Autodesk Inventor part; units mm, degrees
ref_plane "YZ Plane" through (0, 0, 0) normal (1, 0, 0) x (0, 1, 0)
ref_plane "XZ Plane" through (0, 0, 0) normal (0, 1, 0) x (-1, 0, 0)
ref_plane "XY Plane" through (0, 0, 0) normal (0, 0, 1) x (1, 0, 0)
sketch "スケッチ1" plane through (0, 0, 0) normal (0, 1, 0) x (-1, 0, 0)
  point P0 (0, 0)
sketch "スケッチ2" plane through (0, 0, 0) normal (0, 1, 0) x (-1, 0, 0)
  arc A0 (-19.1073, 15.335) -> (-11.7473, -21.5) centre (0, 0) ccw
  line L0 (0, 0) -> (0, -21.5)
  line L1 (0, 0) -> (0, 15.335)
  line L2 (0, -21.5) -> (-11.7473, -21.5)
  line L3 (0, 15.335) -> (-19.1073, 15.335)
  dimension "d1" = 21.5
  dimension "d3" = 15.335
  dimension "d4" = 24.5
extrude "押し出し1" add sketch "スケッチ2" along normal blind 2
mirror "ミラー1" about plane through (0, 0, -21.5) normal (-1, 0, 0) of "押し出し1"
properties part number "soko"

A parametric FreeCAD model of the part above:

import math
import FreeCAD as App
import Part
import Sketcher

doc = App.newDocument("Part")
body = doc.addObject("PartDesign::Body", "Body")

sketch1 = body.newObject("Sketcher::SketchObject", "Sketch")
sketch1.AttachmentSupport = (doc.getObject("XZ_Plane"), [""])
sketch1.MapMode = "FlatFace"
sketch1.addGeometry(Part.LineSegment(App.Vector(0, 15, 0), App.Vector(19, 15, 0)), False)
sketch1.addGeometry(Part.ArcOfCircle(Part.Circle(App.Vector(0, 0, 0), App.Vector(0, 0, 1), 25), math.radians(-61), math.radians(39)), False)
sketch1.addGeometry(Part.LineSegment(App.Vector(12, -22, 0), App.Vector(0, -22, 0)), False)
sketch1.addGeometry(Part.LineSegment(App.Vector(0, -22, 0), App.Vector(0, 15, 0)), False)
sketch1.addConstraint(Sketcher.Constraint("Coincident", 0, 2, 1, 2))
sketch1.addConstraint(Sketcher.Constraint("Coincident", 1, 1, 2, 1))
sketch1.addConstraint(Sketcher.Constraint("Coincident", 2, 2, 3, 1))
sketch1.addConstraint(Sketcher.Constraint("Coincident", 3, 2, 0, 1))
sketch1.addConstraint(Sketcher.Constraint("Horizontal", 0))
sketch1.addConstraint(Sketcher.Constraint("Horizontal", 2))
sketch1.addConstraint(Sketcher.Constraint("Vertical", 3))
sketch1.addConstraint(Sketcher.Constraint("Coincident", 1, 3, -1, 1))
sketch1.addConstraint(Sketcher.Constraint("PointOnObject", 2, 2, -2))
sketch1.addConstraint(Sketcher.Constraint("Radius", 1, 24.5))
sketch1.addConstraint(Sketcher.Constraint("DistanceY", 1, 1, -1, 1, 21.5))
sketch1.addConstraint(Sketcher.Constraint("DistanceY", -1, 1, 0, 2, 15.335))
pad1 = body.newObject("PartDesign::Pad", "Pad")
pad1.Profile = sketch1
pad1.Length = 2
pad1.Reversed = True
doc.recompute()

mirrored = body.newObject("PartDesign::Mirrored", "Mirrored")
mirrored.Originals = [pad1]
mirrored.MirrorPlane = (doc.getObject("YZ_Plane"), [""])
body.Tip = mirrored

doc.recompute()
